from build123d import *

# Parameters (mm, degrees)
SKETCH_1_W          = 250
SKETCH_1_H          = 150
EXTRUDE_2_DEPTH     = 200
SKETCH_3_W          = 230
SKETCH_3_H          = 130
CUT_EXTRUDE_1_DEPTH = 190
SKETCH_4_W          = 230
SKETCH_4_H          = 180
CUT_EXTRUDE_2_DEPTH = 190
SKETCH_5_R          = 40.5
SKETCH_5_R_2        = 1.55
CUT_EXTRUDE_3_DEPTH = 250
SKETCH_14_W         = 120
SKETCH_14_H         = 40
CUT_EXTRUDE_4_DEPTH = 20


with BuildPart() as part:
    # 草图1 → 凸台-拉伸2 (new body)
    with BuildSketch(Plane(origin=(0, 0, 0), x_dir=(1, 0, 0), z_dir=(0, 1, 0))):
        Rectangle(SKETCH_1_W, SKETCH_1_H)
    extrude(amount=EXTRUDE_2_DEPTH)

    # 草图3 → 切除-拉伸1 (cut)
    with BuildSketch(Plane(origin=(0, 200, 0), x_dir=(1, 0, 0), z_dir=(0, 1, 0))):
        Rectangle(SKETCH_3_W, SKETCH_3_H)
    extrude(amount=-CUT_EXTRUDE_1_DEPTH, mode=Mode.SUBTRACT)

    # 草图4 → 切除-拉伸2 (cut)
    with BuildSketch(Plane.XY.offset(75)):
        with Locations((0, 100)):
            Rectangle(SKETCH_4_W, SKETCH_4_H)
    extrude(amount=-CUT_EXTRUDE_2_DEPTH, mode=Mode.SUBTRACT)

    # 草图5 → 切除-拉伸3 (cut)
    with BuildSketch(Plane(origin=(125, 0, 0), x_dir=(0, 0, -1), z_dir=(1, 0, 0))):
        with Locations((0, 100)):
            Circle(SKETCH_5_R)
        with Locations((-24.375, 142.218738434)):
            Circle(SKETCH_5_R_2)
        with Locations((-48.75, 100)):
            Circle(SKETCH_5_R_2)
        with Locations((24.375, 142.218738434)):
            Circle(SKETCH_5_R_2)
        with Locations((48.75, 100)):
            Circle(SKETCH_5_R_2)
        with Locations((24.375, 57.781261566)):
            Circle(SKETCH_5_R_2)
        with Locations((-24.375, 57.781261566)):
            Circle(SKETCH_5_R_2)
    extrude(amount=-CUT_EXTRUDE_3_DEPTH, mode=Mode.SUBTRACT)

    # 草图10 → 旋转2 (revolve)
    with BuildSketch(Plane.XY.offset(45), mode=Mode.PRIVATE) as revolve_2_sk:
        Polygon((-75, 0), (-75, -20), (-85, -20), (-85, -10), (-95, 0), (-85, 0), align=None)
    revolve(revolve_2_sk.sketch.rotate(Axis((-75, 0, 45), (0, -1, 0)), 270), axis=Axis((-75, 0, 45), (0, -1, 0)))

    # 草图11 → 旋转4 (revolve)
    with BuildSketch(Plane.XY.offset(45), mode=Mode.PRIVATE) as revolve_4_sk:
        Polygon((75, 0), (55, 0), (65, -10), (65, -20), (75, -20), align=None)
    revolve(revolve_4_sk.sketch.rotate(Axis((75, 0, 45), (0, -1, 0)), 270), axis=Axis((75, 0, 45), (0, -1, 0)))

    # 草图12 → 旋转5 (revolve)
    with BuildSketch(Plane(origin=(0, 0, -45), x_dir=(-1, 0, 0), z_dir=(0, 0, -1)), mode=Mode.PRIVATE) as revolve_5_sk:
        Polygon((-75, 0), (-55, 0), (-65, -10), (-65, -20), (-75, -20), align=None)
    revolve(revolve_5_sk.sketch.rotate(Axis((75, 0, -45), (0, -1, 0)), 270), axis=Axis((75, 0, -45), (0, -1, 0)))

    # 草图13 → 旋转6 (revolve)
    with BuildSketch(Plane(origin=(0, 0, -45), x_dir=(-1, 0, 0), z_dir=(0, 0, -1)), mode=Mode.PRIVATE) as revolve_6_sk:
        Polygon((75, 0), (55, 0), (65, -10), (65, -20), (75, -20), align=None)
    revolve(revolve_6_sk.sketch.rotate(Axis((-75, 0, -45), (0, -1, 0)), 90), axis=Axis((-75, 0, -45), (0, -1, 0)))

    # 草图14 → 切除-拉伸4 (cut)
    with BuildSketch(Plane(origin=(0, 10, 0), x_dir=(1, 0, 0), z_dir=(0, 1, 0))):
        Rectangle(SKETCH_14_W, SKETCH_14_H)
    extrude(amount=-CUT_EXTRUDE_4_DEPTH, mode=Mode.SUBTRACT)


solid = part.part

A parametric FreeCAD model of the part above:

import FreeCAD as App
import Part
import Sketcher

V = App.Vector
Q = App.Units.Quantity


def add_polygon(sketch, points):
    """Adds a closed chain of lines whose ends are joined by coincident constraints."""
    first, n = sketch.GeometryCount, len(points)
    for a, b in zip(points, points[1:] + points[:1]):
        sketch.addGeometry(Part.LineSegment(App.Vector(*a, 0), App.Vector(*b, 0)), False)
    for i in range(n):
        sketch.addConstraint(Sketcher.Constraint("Coincident", first + i, 2, first + (i + 1) % n, 1))

doc = App.newDocument("Part")
body = doc.addObject("PartDesign::Body", "Body")

# Sketch on XZ plane
sketch1 = doc.addObject("Sketcher::SketchObject", "Sketch")
body.addObject(sketch1)
sketch1.AttachmentSupport = (doc.XZ_Plane, [""])
sketch1.MapMode = "FlatFace"
add_polygon(sketch1, [(-125, -75), (-125, 75), (125, 75), (125, -75)])  # lines 0-3
sketch1.addConstraint(Sketcher.Constraint("Vertical", 0))
sketch1.addConstraint(Sketcher.Constraint("Horizontal", 1))
sketch1.addConstraint(Sketcher.Constraint("Vertical", 2))
sketch1.addConstraint(Sketcher.Constraint("Horizontal", 3))
sketch1.addConstraint(Sketcher.Constraint("Symmetric", 0, 2, 2, 2, -1, 1))
sketch1.addConstraint(Sketcher.Constraint("DistanceX", 1, 1, 1, 2, Q("250 mm")))
sketch1.addConstraint(Sketcher.Constraint("DistanceY", 0, 1, 0, 2, Q("150 mm")))
pad1 = doc.addObject("PartDesign::Pad", "Pad")
body.addObject(pad1)
pad1.Profile = sketch1
pad1.Length = 200
pad1.Reversed = True

# Sketch on XZ plane
sketch2 = doc.addObject("Sketcher::SketchObject", "Sketch001")
body.addObject(sketch2)
sketch2.AttachmentSupport = (doc.XZ_Plane, [""])
sketch2.MapMode = "FlatFace"
sketch2.AttachmentOffset = App.Placement(V(0, 0, -200), App.Rotation())
add_polygon(sketch2, [(-115, -65), (-115, 65), (115, 65), (115, -65)])  # lines 0-3
sketch2.addConstraint(Sketcher.Constraint("Vertical", 0))
sketch2.addConstraint(Sketcher.Constraint("Horizontal", 1))
sketch2.addConstraint(Sketcher.Constraint("Vertical", 2))
sketch2.addConstraint(Sketcher.Constraint("Horizontal", 3))
sketch2.addConstraint(Sketcher.Constraint("Symmetric", 0, 2, 2, 2, -1, 1))
sketch2.addConstraint(Sketcher.Constraint("DistanceX", 1, 1, 1, 2, Q("230 mm")))
sketch2.addConstraint(Sketcher.Constraint("DistanceY", 0, 1, 0, 2, Q("130 mm")))
pocket1 = doc.addObject("PartDesign::Pocket", "Pocket")
body.addObject(pocket1)
pocket1.Profile = sketch2
pocket1.Length = 190
pocket1.Reversed = True

# Sketch on XY plane
sketch3 = doc.addObject("Sketcher::SketchObject", "Sketch002")
body.addObject(sketch3)
sketch3.AttachmentSupport = (doc.XY_Plane, [""])
sketch3.MapMode = "FlatFace"
sketch3.AttachmentOffset = App.Placement(V(0, 0, 75), App.Rotation())
add_polygon(sketch3, [(-115, 190), (-115, 10), (115, 10), (115, 190)])  # lines 0-3
sketch3.addConstraint(Sketcher.Constraint("Vertical", 0))
sketch3.addConstraint(Sketcher.Constraint("Horizontal", 1))
sketch3.addConstraint(Sketcher.Constraint("Vertical", 2))
sketch3.addConstraint(Sketcher.Constraint("Horizontal", 3))
sketch3.addConstraint(Sketcher.Constraint("DistanceX", 1, 1, 1, 2, Q("230 mm")))
sketch3.addConstraint(Sketcher.Constraint("DistanceY", 0, 2, 0, 1, Q("180 mm")))
sketch3.addConstraint(Sketcher.Constraint("DistanceX", 0, 2, -1, 1, Q("115 mm")))
sketch3.addConstraint(Sketcher.Constraint("DistanceY", -1, 1, 0, 2, Q("10 mm")))
pocket2 = doc.addObject("PartDesign::Pocket", "Pocket001")
body.addObject(pocket2)
pocket2.Profile = sketch3
pocket2.Length = 190

# Sketch on YZ plane
sketch4 = doc.addObject("Sketcher::SketchObject", "Sketch003")
body.addObject(sketch4)
sketch4.AttachmentSupport = (doc.YZ_Plane, [""])
sketch4.MapMode = "FlatFace"
sketch4.AttachmentOffset = App.Placement(V(0, 0, 125), App.Rotation())
sketch4.addGeometry(Part.Circle(V(100, 0, 0), V(0, 0, 1), 40.5), False)
sketch4.addGeometry(Part.Circle(V(142.2, 24.4, 0), V(0, 0, 1), 1.6), False)
sketch4.addGeometry(Part.Circle(V(100, 48.8, 0), V(0, 0, 1), 1.6), False)
sketch4.addGeometry(Part.Circle(V(142.2, -24.4, 0), V(0, 0, 1), 1.6), False)
sketch4.addGeometry(Part.Circle(V(100, -48.8, 0), V(0, 0, 1), 1.6), False)
sketch4.addGeometry(Part.Circle(V(57.8, -24.4, 0), V(0, 0, 1), 1.6), False)
sketch4.addGeometry(Part.Circle(V(57.8, 24.4, 0), V(0, 0, 1), 1.6), False)
sketch4.addConstraint(Sketcher.Constraint("Equal", 1, 2))
sketch4.addConstraint(Sketcher.Constraint("Equal", 2, 3))
sketch4.addConstraint(Sketcher.Constraint("Equal", 3, 4))
sketch4.addConstraint(Sketcher.Constraint("Equal", 4, 5))
sketch4.addConstraint(Sketcher.Constraint("Equal", 5, 6))
sketch4.addConstraint(Sketcher.Constraint("Symmetric", 1, 3, 3, 3, -1))
sketch4.addConstraint(Sketcher.Constraint("Symmetric", 2, 3, 4, 3, -1))
sketch4.addConstraint(Sketcher.Constraint("Symmetric", 5, 3, 6, 3, -1))
sketch4.addConstraint(Sketcher.Constraint("PointOnObject", 0, 3, -1))
sketch4.addConstraint(Sketcher.Constraint("Horizontal", 3, 3, 5, 3))
sketch4.addConstraint(Sketcher.Constraint("Vertical", 0, 3, 2, 3))
sketch4.addConstraint(Sketcher.Constraint("Diameter", 0, Q("81 mm")))
sketch4.addConstraint(Sketcher.Constraint("Diameter", 1, Q("3.1 mm")))
sketch4.addConstraint(Sketcher.Constraint("DistanceX", -1, 1, 0, 3, Q("100 mm")))
sketch4.addConstraint(Sketcher.Constraint("DistanceY", 4, 3, 2, 3, Q("97.5 mm")))
sketch4.addConstraint(Sketcher.Constraint("DistanceY", 3, 3, 1, 3, Q("48.75 mm")))
sketch4.addConstraint(Sketcher.Constraint("DistanceX", -1, 1, 1, 3, Q("142.218738 mm")))
sketch4.addConstraint(Sketcher.Constraint("DistanceX", -1, 1, 5, 3, Q("57.781262 mm")))
pocket3 = doc.addObject("PartDesign::Pocket", "Pocket002")
body.addObject(pocket3)
pocket3.Profile = sketch4
pocket3.Length = 250

# Sketch on XY plane
sketch5 = doc.addObject("Sketcher::SketchObject", "Sketch004")
body.addObject(sketch5)
sketch5.AttachmentSupport = (doc.XY_Plane, [""])
sketch5.MapMode = "FlatFace"
sketch5.AttachmentOffset = App.Placement(V(0, 0, 45), App.Rotation())
add_polygon(sketch5, [(-75, -20), (-75, 0), (-95, 0), (-85, -10), (-85, -20)])  # lines 0-4
sketch5.addGeometry(Part.LineSegment(V(-75, 0, 0), V(-75, -20, 0)), True)  # axis
sketch5.addConstraint(Sketcher.Constraint("Vertical", 0))
sketch5.addConstraint(Sketcher.Constraint("Horizontal", 1))
sketch5.addConstraint(Sketcher.Constraint("Vertical", 3))
sketch5.addConstraint(Sketcher.Constraint("Horizontal", 4))
sketch5.addConstraint(Sketcher.Constraint("Vertical", 5))
sketch5.addConstraint(Sketcher.Constraint("Coincident", 5, 1, 0, 2))
sketch5.addConstraint(Sketcher.Constraint("PointOnObject", 0, 2, -1))
sketch5.addConstraint(Sketcher.Constraint("Horizontal", 3, 2, 5, 2))
sketch5.addConstraint(Sketcher.Constraint("Equal", 1, 0))
sketch5.addConstraint(Sketcher.Constraint("Equal", 4, 3))
sketch5.addConstraint(Sketcher.Constraint("DistanceX", 1, 2, 1, 1, Q("20 mm")))
sketch5.addConstraint(Sketcher.Constraint("DistanceX", 4, 1, 4, 2, Q("10 mm")))
sketch5.addConstraint(Sketcher.Constraint("DistanceX", 0, 2, -1, 1, Q("75 mm")))
revolution = doc.addObject("PartDesign::Revolution", "Revolution")
body.addObject(revolution)
revolution.Profile = sketch5
revolution.ReferenceAxis = (sketch5, ["Axis0"])
revolution.Angle = 360

# Sketch on XY plane
sketch6 = doc.addObject("Sketcher::SketchObject", "Sketch005")
body.addObject(sketch6)
sketch6.AttachmentSupport = (doc.XY_Plane, [""])
sketch6.MapMode = "FlatFace"
sketch6.AttachmentOffset = App.Placement(V(0, 0, 45), App.Rotation())
add_polygon(sketch6, [(75, 0), (55, 0), (65, -10), (65, -20), (75, -20)])  # lines 0-4
sketch6.addGeometry(Part.LineSegment(V(75, 0, 0), V(75, -20, 0)), True)  # axis
sketch6.addConstraint(Sketcher.Constraint("Horizontal", 0))
sketch6.addConstraint(Sketcher.Constraint("Vertical", 2))
sketch6.addConstraint(Sketcher.Constraint("Horizontal", 3))
sketch6.addConstraint(Sketcher.Constraint("Vertical", 4))
sketch6.addConstraint(Sketcher.Constraint("Vertical", 5))
sketch6.addConstraint(Sketcher.Constraint("Coincident", 5, 1, 4, 2))
sketch6.addConstraint(Sketcher.Constraint("PointOnObject", 0, 2, -1))
sketch6.addConstraint(Sketcher.Constraint("Horizontal", 2, 2, 5, 2))
sketch6.addConstraint(Sketcher.Constraint("Equal", 3, 2))
sketch6.addConstraint(Sketcher.Constraint("Equal", 0, 4))
sketch6.addConstraint(Sketcher.Constraint("DistanceX", 0, 2, 0, 1, Q("20 mm")))
sketch6.addConstraint(Sketcher.Constraint("DistanceX", 3, 1, 3, 2, Q("10 mm")))
sketch6.addConstraint(Sketcher.Constraint("DistanceX", -1, 1, 0, 2, Q("55 mm")))
revolution2 = doc.addObject("PartDesign::Revolution", "Revolution001")
body.addObject(revolution2)
revolution2.Profile = sketch6
revolution2.ReferenceAxis = (sketch6, ["Axis0"])
revolution2.Angle = 360

# Sketch on XY plane
sketch7 = doc.addObject("Sketcher::SketchObject", "Sketch006")
body.addObject(sketch7)
sketch7.AttachmentSupport = (doc.XY_Plane, [""])
sketch7.MapMode = "FlatFace"
sketch7.AttachmentOffset = App.Placement(V(0, 0, -45), App.Rotation())
add_polygon(sketch7, [(55, 0), (75, 0), (75, -20), (65, -20), (65, -10)])  # lines 0-4
sketch7.addGeometry(Part.LineSegment(V(75, 0, 0), V(75, -20, 0)), True)  # axis
sketch7.addConstraint(Sketcher.Constraint("Horizontal", 0))
sketch7.addConstraint(Sketcher.Constraint("Vertical", 1))
sketch7.addConstraint(Sketcher.Constraint("Horizontal", 2))
sketch7.addConstraint(Sketcher.Constraint("Vertical", 3))
sketch7.addConstraint(Sketcher.Constraint("Vertical", 5))
sketch7.addConstraint(Sketcher.Constraint("Coincident", 5, 1, 0, 2))
sketch7.addConstraint(Sketcher.Constraint("PointOnObject", 0, 2, -1))
sketch7.addConstraint(Sketcher.Constraint("Horizontal", 2, 2, 5, 2))
sketch7.addConstraint(Sketcher.Constraint("Equal", 0, 1))
sketch7.addConstraint(Sketcher.Constraint("Equal", 2, 3))
sketch7.addConstraint(Sketcher.Constraint("DistanceX", 0, 1, 0, 2, Q("20 mm")))
sketch7.addConstraint(Sketcher.Constraint("DistanceX", 2, 2, 2, 1, Q("10 mm")))
sketch7.addConstraint(Sketcher.Constraint("DistanceX", -1, 1, 0, 2, Q("75 mm")))
revolution3 = doc.addObject("PartDesign::Revolution", "Revolution002")
body.addObject(revolution3)
revolution3.Profile = sketch7
revolution3.ReferenceAxis = (sketch7, ["Axis0"])
revolution3.Angle = 360

# Sketch on XY plane
sketch8 = doc.addObject("Sketcher::SketchObject", "Sketch007")
body.addObject(sketch8)
sketch8.AttachmentSupport = (doc.XY_Plane, [""])
sketch8.MapMode = "FlatFace"
sketch8.AttachmentOffset = App.Placement(V(0, 0, -45), App.Rotation())
add_polygon(sketch8, [(-75, 0), (-55, 0), (-65, -10), (-65, -20), (-75, -20)])  # lines 0-4
sketch8.addGeometry(Part.LineSegment(V(-75, 0, 0), V(-75, -20, 0)), True)  # axis
sketch8.addConstraint(Sketcher.Constraint("Horizontal", 0))
sketch8.addConstraint(Sketcher.Constraint("Vertical", 2))
sketch8.addConstraint(Sketcher.Constraint("Horizontal", 3))
sketch8.addConstraint(Sketcher.Constraint("Vertical", 4))
sketch8.addConstraint(Sketcher.Constraint("Vertical", 5))
sketch8.addConstraint(Sketcher.Constraint("Coincident", 5, 1, 4, 2))
sketch8.addConstraint(Sketcher.Constraint("PointOnObject", 0, 2, -1))
sketch8.addConstraint(Sketcher.Constraint("Horizontal", 2, 2, 5, 2))
sketch8.addConstraint(Sketcher.Constraint("Equal", 3, 2))
sketch8.addConstraint(Sketcher.Constraint("Equal", 0, 4))
sketch8.addConstraint(Sketcher.Constraint("DistanceX", 0, 1, 0, 2, Q("20 mm")))
sketch8.addConstraint(Sketcher.Constraint("DistanceX", 3, 2, 3, 1, Q("10 mm")))
sketch8.addConstraint(Sketcher.Constraint("DistanceX", 0, 2, -1, 1, Q("55 mm")))
revolution4 = doc.addObject("PartDesign::Revolution", "Revolution003")
body.addObject(revolution4)
revolution4.Profile = sketch8
revolution4.ReferenceAxis = (sketch8, ["Axis0"])
revolution4.Angle = 360

# Sketch on XZ plane
sketch9 = doc.addObject("Sketcher::SketchObject", "Sketch008")
body.addObject(sketch9)
sketch9.AttachmentSupport = (doc.XZ_Plane, [""])
sketch9.MapMode = "FlatFace"
sketch9.AttachmentOffset = App.Placement(V(0, 0, -10), App.Rotation())
add_polygon(sketch9, [(-60, -20), (-60, 20), (60, 20), (60, -20)])  # lines 0-3
sketch9.addConstraint(Sketcher.Constraint("Vertical", 0))
sketch9.addConstraint(Sketcher.Constraint("Horizontal", 1))
sketch9.addConstraint(Sketcher.Constraint("Vertical", 2))
sketch9.addConstraint(Sketcher.Constraint("Horizontal", 3))
sketch9.addConstraint(Sketcher.Constraint("Symmetric", 0, 2, 2, 2, -1, 1))
sketch9.addConstraint(Sketcher.Constraint("DistanceX", 1, 1, 1, 2, Q("120 mm")))
sketch9.addConstraint(Sketcher.Constraint("DistanceY", 0, 1, 0, 2, Q("40 mm")))
pocket4 = doc.addObject("PartDesign::Pocket", "Pocket003")
body.addObject(pocket4)
pocket4.Profile = sketch9
pocket4.Length = 20
pocket4.Reversed = True

doc.recompute()
